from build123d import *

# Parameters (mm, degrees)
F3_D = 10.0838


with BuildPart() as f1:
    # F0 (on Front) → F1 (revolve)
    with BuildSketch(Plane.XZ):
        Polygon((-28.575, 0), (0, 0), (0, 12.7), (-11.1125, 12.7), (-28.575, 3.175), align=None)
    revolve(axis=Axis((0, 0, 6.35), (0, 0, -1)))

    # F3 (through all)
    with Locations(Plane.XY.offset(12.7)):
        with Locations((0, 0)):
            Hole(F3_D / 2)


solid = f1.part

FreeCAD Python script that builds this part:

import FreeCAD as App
import Part
import Sketcher

V = App.Vector
Q = App.Units.Quantity


def add_polygon(sketch, points):
    """Adds a closed chain of lines whose ends are joined by coincident constraints."""
    first, n = sketch.GeometryCount, len(points)
    for a, b in zip(points, points[1:] + points[:1]):
        sketch.addGeometry(Part.LineSegment(App.Vector(*a, 0), App.Vector(*b, 0)), False)
    for i in range(n):
        sketch.addConstraint(Sketcher.Constraint("Coincident", first + i, 2, first + (i + 1) % n, 1))

doc = App.newDocument("Part")
body = doc.addObject("PartDesign::Body", "Body")

# Sketch on XZ plane
sketch1 = body.newObject("Sketcher::SketchObject", "Sketch")
sketch1.AttachmentSupport = (doc.getObject("XZ_Plane"), [""])
sketch1.MapMode = "FlatFace"
add_polygon(sketch1, [(-28.6, 0), (0, 0), (0, 12.7), (-11.1, 12.7), (-28.6, 3.2)])  # lines 0-4
sketch1.addConstraint([
    Sketcher.Constraint("Horizontal", 0),
    Sketcher.Constraint("Vertical", 1),
    Sketcher.Constraint("Horizontal", 2),
    Sketcher.Constraint("Vertical", 4),
    Sketcher.Constraint("Coincident", 0, 2, -1, 1),
    Sketcher.Constraint("DistanceY", 1, 1, 1, 2, Q("0.5 in")),
    Sketcher.Constraint("DistanceX", 0, 1, 0, 2, Q("1.125 in")),
    Sketcher.Constraint("DistanceX", 2, 2, 2, 1, Q("0.4375 in")),
    Sketcher.Constraint("DistanceY", 4, 2, 4, 1, Q("0.125 in")),
])
revolution = body.newObject("PartDesign::Revolution", "Revolution")
revolution.Profile = sketch1
revolution.ReferenceAxis = (sketch1, ["V_Axis"])
revolution.Angle = 360

# Sketch on XY plane
sketch2 = body.newObject("Sketcher::SketchObject", "Sketch001")
sketch2.AttachmentSupport = (doc.getObject("XY_Plane"), [""])
sketch2.MapMode = "FlatFace"
sketch2.AttachmentOffset = App.Placement(V(0, 0, 0.5 * 25.4), App.Rotation())
sketch2.addGeometry(Part.Circle(V(0, 0, 0), V(0, 0, 1), 5), False)
sketch2.addConstraint([
    Sketcher.Constraint("Coincident", 0, 3, -1, 1),
    Sketcher.Constraint("Diameter", 0, Q("0.397 in")),
])
doc.recompute()
hole = body.newObject("PartDesign::Hole", "Hole")
hole.Profile = sketch2
hole.ThreadType = "None"
hole.Diameter = Q("0.397 in")
hole.DepthType = "ThroughAll"

doc.recompute()
